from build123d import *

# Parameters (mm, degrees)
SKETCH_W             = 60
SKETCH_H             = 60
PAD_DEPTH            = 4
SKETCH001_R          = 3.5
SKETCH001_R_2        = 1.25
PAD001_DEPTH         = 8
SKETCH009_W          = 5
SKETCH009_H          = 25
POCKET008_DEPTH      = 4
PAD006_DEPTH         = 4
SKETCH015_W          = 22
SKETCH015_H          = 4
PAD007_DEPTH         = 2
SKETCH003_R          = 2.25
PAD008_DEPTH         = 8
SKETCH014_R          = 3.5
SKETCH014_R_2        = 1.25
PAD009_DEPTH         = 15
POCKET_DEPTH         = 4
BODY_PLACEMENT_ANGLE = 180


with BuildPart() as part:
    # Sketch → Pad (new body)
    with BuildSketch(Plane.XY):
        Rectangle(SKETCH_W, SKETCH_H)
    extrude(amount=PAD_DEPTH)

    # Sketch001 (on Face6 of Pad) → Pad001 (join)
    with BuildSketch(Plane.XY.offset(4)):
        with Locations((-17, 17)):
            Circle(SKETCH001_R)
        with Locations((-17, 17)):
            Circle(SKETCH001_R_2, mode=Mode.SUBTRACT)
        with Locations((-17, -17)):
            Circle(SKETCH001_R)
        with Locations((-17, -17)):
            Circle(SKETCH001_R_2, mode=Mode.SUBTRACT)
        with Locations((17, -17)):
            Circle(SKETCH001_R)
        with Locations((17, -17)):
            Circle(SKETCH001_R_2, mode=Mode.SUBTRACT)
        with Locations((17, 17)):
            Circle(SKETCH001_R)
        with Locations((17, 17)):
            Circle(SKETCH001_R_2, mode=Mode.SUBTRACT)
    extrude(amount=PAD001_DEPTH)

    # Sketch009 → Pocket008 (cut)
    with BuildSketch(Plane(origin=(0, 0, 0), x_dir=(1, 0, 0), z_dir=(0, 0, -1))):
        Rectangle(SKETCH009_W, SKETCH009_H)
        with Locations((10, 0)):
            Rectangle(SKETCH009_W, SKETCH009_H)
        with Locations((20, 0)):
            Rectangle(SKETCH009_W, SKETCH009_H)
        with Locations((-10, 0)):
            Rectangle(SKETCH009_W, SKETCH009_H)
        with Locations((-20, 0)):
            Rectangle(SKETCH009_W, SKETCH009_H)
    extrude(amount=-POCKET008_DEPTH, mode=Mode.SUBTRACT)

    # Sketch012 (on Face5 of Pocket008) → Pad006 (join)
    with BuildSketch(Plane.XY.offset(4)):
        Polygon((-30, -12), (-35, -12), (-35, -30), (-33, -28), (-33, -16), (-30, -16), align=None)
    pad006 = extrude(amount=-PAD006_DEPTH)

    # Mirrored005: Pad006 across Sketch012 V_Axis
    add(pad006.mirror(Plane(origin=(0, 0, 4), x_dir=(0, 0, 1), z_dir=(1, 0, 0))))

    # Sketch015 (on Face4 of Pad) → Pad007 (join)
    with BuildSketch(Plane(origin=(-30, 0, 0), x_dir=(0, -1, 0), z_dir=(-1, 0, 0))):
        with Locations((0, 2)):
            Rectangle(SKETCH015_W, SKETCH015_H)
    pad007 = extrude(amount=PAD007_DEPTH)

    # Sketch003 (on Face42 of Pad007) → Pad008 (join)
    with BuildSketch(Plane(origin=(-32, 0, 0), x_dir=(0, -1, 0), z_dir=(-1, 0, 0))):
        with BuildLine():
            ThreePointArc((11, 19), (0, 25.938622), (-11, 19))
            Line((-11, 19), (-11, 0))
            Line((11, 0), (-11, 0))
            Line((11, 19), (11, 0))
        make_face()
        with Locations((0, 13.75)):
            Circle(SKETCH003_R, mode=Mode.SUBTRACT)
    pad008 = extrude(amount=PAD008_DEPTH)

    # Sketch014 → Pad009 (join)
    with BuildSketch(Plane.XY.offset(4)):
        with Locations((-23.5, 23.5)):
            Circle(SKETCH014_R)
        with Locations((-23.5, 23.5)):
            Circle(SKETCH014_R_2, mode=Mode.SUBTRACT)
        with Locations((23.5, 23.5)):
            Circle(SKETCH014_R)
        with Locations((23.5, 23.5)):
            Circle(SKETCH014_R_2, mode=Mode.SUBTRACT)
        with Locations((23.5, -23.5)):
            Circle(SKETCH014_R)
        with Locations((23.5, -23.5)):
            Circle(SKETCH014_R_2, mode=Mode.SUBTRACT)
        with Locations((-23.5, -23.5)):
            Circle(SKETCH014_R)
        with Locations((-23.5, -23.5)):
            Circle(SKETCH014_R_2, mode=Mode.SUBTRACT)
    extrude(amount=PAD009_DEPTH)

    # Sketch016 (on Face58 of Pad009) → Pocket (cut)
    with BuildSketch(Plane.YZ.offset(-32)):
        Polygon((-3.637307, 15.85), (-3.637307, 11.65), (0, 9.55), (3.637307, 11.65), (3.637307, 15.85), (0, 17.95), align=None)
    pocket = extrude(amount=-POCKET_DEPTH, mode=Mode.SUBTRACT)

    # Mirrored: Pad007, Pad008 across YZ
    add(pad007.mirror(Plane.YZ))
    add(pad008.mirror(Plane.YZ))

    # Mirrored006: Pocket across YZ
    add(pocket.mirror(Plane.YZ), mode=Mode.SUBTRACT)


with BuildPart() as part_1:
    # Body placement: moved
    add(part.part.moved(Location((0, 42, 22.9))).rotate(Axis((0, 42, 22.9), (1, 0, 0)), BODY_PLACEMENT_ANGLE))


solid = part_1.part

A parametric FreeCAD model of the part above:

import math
import FreeCAD as App
import Part
import Sketcher

V = App.Vector
Q = App.Units.Quantity


def add_polygon(sketch, points):
    """Adds a closed chain of lines whose ends are joined by coincident constraints."""
    first, n = sketch.GeometryCount, len(points)
    for a, b in zip(points, points[1:] + points[:1]):
        sketch.addGeometry(Part.LineSegment(App.Vector(*a, 0), App.Vector(*b, 0)), False)
    for i in range(n):
        sketch.addConstraint(Sketcher.Constraint("Coincident", first + i, 2, first + (i + 1) % n, 1))

doc = App.newDocument("Part")
params = doc.addObject("Spreadsheet::Sheet", "Params")
for row, (alias, value) in enumerate([
    ("sketch1_width", "60 mm"),
    ("pad1_length", "4 mm"),
    ("sketch2_diameter", "7 mm"),
    ("sketch2_diameter2", "2.5 mm"),
    ("pad2_length", "8 mm"),
    ("sketch3_width", "5 mm"),
    ("sketch3_height", "25 mm"),
    ("pocket1_length", "4 mm"),
    ("sketch4_width", "5 mm"),
    ("sketch4_width2", "3 mm"),
    ("sketch4_height", "18 mm"),
    ("sketch4_height2", "12 mm"),
    ("sketch4_height3", "4 mm"),
    ("pad3_length", "4 mm"),
    ("sketch5_width", "22 mm"),
    ("sketch5_height", "4 mm"),
    ("pad4_length", "2 mm"),
    ("sketch6_diameter", "4.5 mm"),
    ("sketch6_width", "22 mm"),
    ("sketch6_height", "19 mm"),
    ("pad5_length", "8 mm"),
    ("sketch7_diameter", "7 mm"),
    ("sketch7_diameter2", "2.5 mm"),
    ("pad6_length", "15 mm"),
    ("sketch8_height", "4.2 mm"),
    ("sketch8_length", "4.2 mm"),
    ("pocket2_length", "4 mm"),
], start=1):
    params.set(f"A{row}", alias)
    params.set(f"B{row}", "=" + value)
    params.setAlias(f"B{row}", alias)

body = doc.addObject("PartDesign::Body", "Body")

# Sketch on XY plane
sketch1 = body.newObject("Sketcher::SketchObject", "Sketch")
sketch1.AttachmentSupport = (doc.getObject("XY_Plane"), [""])
sketch1.MapMode = "FlatFace"
add_polygon(sketch1, [(-30, 30), (-30, -30), (30, -30), (30, 30)])  # lines 0-3
sketch1.addConstraint(Sketcher.Constraint("Vertical", 0))
sketch1.addConstraint(Sketcher.Constraint("Horizontal", 1))
sketch1.addConstraint(Sketcher.Constraint("Vertical", 2))
sketch1.addConstraint(Sketcher.Constraint("Horizontal", 3))
sketch1.addConstraint(Sketcher.Constraint("Symmetric", 0, 2, 2, 2, -1, 1))
sketch1.addConstraint(Sketcher.Constraint("Equal", 3, 0))
sketch1.addConstraint(Sketcher.Constraint("DistanceX", 1, 1, 1, 2, 60.0))
sketch1.setExpression("Constraints[10]", "Params.sketch1_width")
pad1 = body.newObject("PartDesign::Pad", "Pad")
pad1.Profile = sketch1
pad1.setExpression("Length", "Params.pad1_length")

# Sketch on XY plane
sketch2 = body.newObject("Sketcher::SketchObject", "Sketch001")
sketch2.AttachmentSupport = (doc.getObject("XY_Plane"), [""])
sketch2.MapMode = "FlatFace"
sketch2.AttachmentOffset = App.Placement(V(0, 0, 4), App.Rotation())
sketch2.addGeometry(Part.Circle(V(-17, 17, 0), V(0, 0, 1), 3.5), False)
sketch2.addGeometry(Part.Circle(V(-17, 17, 0), V(0, 0, 1), 1.25), False)
sketch2.addGeometry(Part.Circle(V(-17, -17, 0), V(0, 0, 1), 3.5), False)
sketch2.addGeometry(Part.Circle(V(-17, -17, 0), V(0, 0, 1), 1.25), False)
sketch2.addGeometry(Part.Circle(V(17, -17, 0), V(0, 0, 1), 3.5), False)
sketch2.addGeometry(Part.Circle(V(17, -17, 0), V(0, 0, 1), 1.25), False)
sketch2.addGeometry(Part.Circle(V(17, 17, 0), V(0, 0, 1), 3.5), False)
sketch2.addGeometry(Part.Circle(V(17, 17, 0), V(0, 0, 1), 1.25), False)
sketch2.addConstraint(Sketcher.Constraint("Coincident", 1, 3, 0, 3))
sketch2.addConstraint(Sketcher.Constraint("Coincident", 3, 3, 2, 3))
sketch2.addConstraint(Sketcher.Constraint("Coincident", 5, 3, 4, 3))
sketch2.addConstraint(Sketcher.Constraint("Coincident", 7, 3, 6, 3))
sketch2.addConstraint(Sketcher.Constraint("Equal", 0, 2))
sketch2.addConstraint(Sketcher.Constraint("Equal", 1, 3))
sketch2.addConstraint(Sketcher.Constraint("Equal", 2, 4))
sketch2.addConstraint(Sketcher.Constraint("Equal", 3, 5))
sketch2.addConstraint(Sketcher.Constraint("Equal", 4, 6))
sketch2.addConstraint(Sketcher.Constraint("Equal", 5, 7))
sketch2.addConstraint(Sketcher.Constraint("Symmetric", 0, 3, 4, 3, -1, 1))
sketch2.addConstraint(Sketcher.Constraint("Symmetric", 2, 3, 6, 3, -1, 1))
sketch2.addConstraint(Sketcher.Constraint("Symmetric", 2, 3, 4, 3, -2))
sketch2.addConstraint(Sketcher.Constraint("Diameter", 0, 7.0))
sketch2.addConstraint(Sketcher.Constraint("Diameter", 1, 2.5))
sketch2.addConstraint(Sketcher.Constraint("DistanceX", 0, 3, -1, 1, 17.0))
sketch2.addConstraint(Sketcher.Constraint("DistanceY", -1, 1, 0, 3, 17.0))
sketch2.setExpression("Constraints[13]", "Params.sketch2_diameter")
sketch2.setExpression("Constraints[14]", "Params.sketch2_diameter2")
pad2 = body.newObject("PartDesign::Pad", "Pad001")
pad2.Profile = sketch2
pad2.setExpression("Length", "Params.pad2_length")

# Sketch on XY plane
sketch3 = body.newObject("Sketcher::SketchObject", "Sketch002")
sketch3.AttachmentSupport = (doc.getObject("XY_Plane"), [""])
sketch3.MapMode = "FlatFace"
add_polygon(sketch3, [(-2.5, -12.5), (-2.5, 12.5), (2.5, 12.5), (2.5, -12.5)])  # lines 0-3
add_polygon(sketch3, [(7.5, -12.5), (7.5, 12.5), (12.5, 12.5), (12.5, -12.5)])  # lines 4-7
add_polygon(sketch3, [(17.5, -12.5), (17.5, 12.5), (22.5, 12.5), (22.5, -12.5)])  # lines 8-11
add_polygon(sketch3, [(-12.5, -12.5), (-12.5, 12.5), (-7.5, 12.5), (-7.5, -12.5)])  # lines 12-15
add_polygon(sketch3, [(-22.5, -12.5), (-22.5, 12.5), (-17.5, 12.5), (-17.5, -12.5)])  # lines 16-19
sketch3.addConstraint(Sketcher.Constraint("Vertical", 0))
sketch3.addConstraint(Sketcher.Constraint("Horizontal", 1))
sketch3.addConstraint(Sketcher.Constraint("Vertical", 2))
sketch3.addConstraint(Sketcher.Constraint("Horizontal", 3))
sketch3.addConstraint(Sketcher.Constraint("Vertical", 4))
sketch3.addConstraint(Sketcher.Constraint("Horizontal", 5))
sketch3.addConstraint(Sketcher.Constraint("Vertical", 6))
sketch3.addConstraint(Sketcher.Constraint("Horizontal", 7))
sketch3.addConstraint(Sketcher.Constraint("Vertical", 8))
sketch3.addConstraint(Sketcher.Constraint("Horizontal", 9))
sketch3.addConstraint(Sketcher.Constraint("Vertical", 10))
sketch3.addConstraint(Sketcher.Constraint("Horizontal", 11))
sketch3.addConstraint(Sketcher.Constraint("Vertical", 12))
sketch3.addConstraint(Sketcher.Constraint("Horizontal", 13))
sketch3.addConstraint(Sketcher.Constraint("Vertical", 14))
sketch3.addConstraint(Sketcher.Constraint("Horizontal", 15))
sketch3.addConstraint(Sketcher.Constraint("Vertical", 16))
sketch3.addConstraint(Sketcher.Constraint("Horizontal", 17))
sketch3.addConstraint(Sketcher.Constraint("Vertical", 18))
sketch3.addConstraint(Sketcher.Constraint("Horizontal", 19))
sketch3.addConstraint(Sketcher.Constraint("Symmetric", 0, 2, 2, 2, -1, 1))
sketch3.addConstraint(Sketcher.Constraint("Symmetric", 6, 2, 12, 2, -1, 1))
sketch3.addConstraint(Sketcher.Constraint("Symmetric", 4, 2, 14, 2, -1, 1))
sketch3.addConstraint(Sketcher.Constraint("Symmetric", 10, 2, 16, 2, -1, 1))
sketch3.addConstraint(Sketcher.Constraint("Symmetric", 8, 2, 18, 2, -1, 1))
sketch3.addConstraint(Sketcher.Constraint("Horizontal", 1, 2, 4, 2))
sketch3.addConstraint(Sketcher.Constraint("Horizontal", 3, 2, 6, 2))
sketch3.addConstraint(Sketcher.Constraint("Horizontal", 5, 2, 8, 2))
sketch3.addConstraint(Sketcher.Constraint("Horizontal", 7, 2, 10, 2))
sketch3.addConstraint(Sketcher.Constraint("Equal", 3, 5))
sketch3.addConstraint(Sketcher.Constraint("Equal", 7, 9))
sketch3.addConstraint(Sketcher.Constraint("DistanceX", 1, 1, 1, 2, 5.0))
sketch3.addConstraint(Sketcher.Constraint("DistanceY", 0, 1, 0, 2, 25.0))
sketch3.addConstraint(Sketcher.Constraint("DistanceX", 1, 2, 4, 2, 5.0))
sketch3.addConstraint(Sketcher.Constraint("DistanceX", 5, 2, 8, 2, 5.0))
sketch3.setExpression("Constraints[51]", "Params.sketch3_width")
sketch3.setExpression("Constraints[52]", "Params.sketch3_height")
pocket1 = body.newObject("PartDesign::Pocket", "Pocket")
pocket1.Profile = sketch3
pocket1.setExpression("Length", "Params.pocket1_length")
pocket1.Reversed = True

# Sketch on XY plane
sketch4 = body.newObject("Sketcher::SketchObject", "Sketch003")
sketch4.AttachmentSupport = (doc.getObject("XY_Plane"), [""])
sketch4.MapMode = "FlatFace"
sketch4.AttachmentOffset = App.Placement(V(0, 0, 4), App.Rotation())
add_polygon(sketch4, [(-30, -12), (-35, -12), (-35, -30), (-33, -28), (-33, -16), (-30, -16)])  # lines 0-5
sketch4.addConstraint(Sketcher.Constraint("Horizontal", 0))
sketch4.addConstraint(Sketcher.Constraint("Vertical", 1))
sketch4.addConstraint(Sketcher.Constraint("Vertical", 3))
sketch4.addConstraint(Sketcher.Constraint("Horizontal", 4))
sketch4.addConstraint(Sketcher.Constraint("Vertical", 5))
sketch4.addConstraint(Sketcher.Constraint("DistanceX", 0, 2, 0, 1, 5.0))
sketch4.addConstraint(Sketcher.Constraint("DistanceX", 4, 1, 4, 2, 3.0))
sketch4.addConstraint(Sketcher.Constraint("DistanceY", 1, 2, 1, 1, 18.0))
sketch4.addConstraint(Sketcher.Constraint("DistanceY", 3, 1, 3, 2, 12.0))
sketch4.addConstraint(Sketcher.Constraint("DistanceY", 5, 1, 5, 2, 4.0))
sketch4.addConstraint(Sketcher.Constraint("DistanceX", 0, 2, -1, 1, 35.0))
sketch4.addConstraint(Sketcher.Constraint("DistanceY", 0, 2, -1, 1, 12.0))
sketch4.setExpression("Constraints[11]", "Params.sketch4_width")
sketch4.setExpression("Constraints[12]", "Params.sketch4_width2")
sketch4.setExpression("Constraints[13]", "Params.sketch4_height")
sketch4.setExpression("Constraints[14]", "Params.sketch4_height2")
sketch4.setExpression("Constraints[15]", "Params.sketch4_height3")
pad3 = body.newObject("PartDesign::Pad", "Pad002")
pad3.Profile = sketch4
pad3.setExpression("Length", "Params.pad3_length")
pad3.Reversed = True
doc.recompute()

mirrored = body.newObject("PartDesign::Mirrored", "Mirrored")
mirrored.Originals = [pad3]
mirrored.MirrorPlane = (doc.getObject("YZ_Plane"), [""])
body.Tip = mirrored

# Sketch on YZ plane
sketch5 = body.newObject("Sketcher::SketchObject", "Sketch004")
sketch5.AttachmentSupport = (doc.getObject("YZ_Plane"), [""])
sketch5.MapMode = "FlatFace"
sketch5.AttachmentOffset = App.Placement(V(0, 0, -30), App.Rotation())
add_polygon(sketch5, [(11, 4), (11, 0), (-11, 0), (-11, 4)])  # lines 0-3
sketch5.addConstraint(Sketcher.Constraint("Vertical", 0))
sketch5.addConstraint(Sketcher.Constraint("Horizontal", 1))
sketch5.addConstraint(Sketcher.Constraint("Vertical", 2))
sketch5.addConstraint(Sketcher.Constraint("Horizontal", 3))
sketch5.addConstraint(Sketcher.Constraint("Symmetric", 0, 2, 1, 2, -1, 1))
sketch5.addConstraint(Sketcher.Constraint("DistanceX", 1, 2, 1, 1, 22.0))
sketch5.addConstraint(Sketcher.Constraint("DistanceY", 0, 2, 0, 1, 4.0))
sketch5.setExpression("Constraints[9]", "Params.sketch5_width")
sketch5.setExpression("Constraints[10]", "Params.sketch5_height")
pad4 = body.newObject("PartDesign::Pad", "Pad003")
pad4.Profile = sketch5
pad4.setExpression("Length", "Params.pad4_length")
pad4.Reversed = True

# Sketch on YZ plane
sketch6 = body.newObject("Sketcher::SketchObject", "Sketch005")
sketch6.AttachmentSupport = (doc.getObject("YZ_Plane"), [""])
sketch6.MapMode = "FlatFace"
sketch6.AttachmentOffset = App.Placement(V(0, 0, -32), App.Rotation())
sketch6.addGeometry(Part.ArcOfCircle(Part.Circle(V(0, 13.75, 0), V(0, 0, 1), 12.188622), math.radians(25.513869), math.radians(154.486131)), False)
sketch6.addGeometry(Part.LineSegment(V(11, 19, 0), V(11, 0, 0)), False)
sketch6.addGeometry(Part.LineSegment(V(11, 0, 0), V(-11, 0, 0)), False)
sketch6.addGeometry(Part.LineSegment(V(-11, 0, 0), V(-11, 19, 0)), False)
sketch6.addGeometry(Part.Circle(V(0, 13.75, 0), V(0, 0, 1), 2.25), False)
sketch6.addConstraint(Sketcher.Constraint("Coincident", 0, 1, 1, 1))
sketch6.addConstraint(Sketcher.Constraint("Coincident", 1, 2, 2, 1))
sketch6.addConstraint(Sketcher.Constraint("Coincident", 2, 2, 3, 1))
sketch6.addConstraint(Sketcher.Constraint("Coincident", 3, 2, 0, 2))
sketch6.addConstraint(Sketcher.Constraint("Vertical", 1))
sketch6.addConstraint(Sketcher.Constraint("Horizontal", 2))
sketch6.addConstraint(Sketcher.Constraint("Vertical", 3))
sketch6.addConstraint(Sketcher.Constraint("Coincident", 4, 3, 0, 3))
sketch6.addConstraint(Sketcher.Constraint("Symmetric", 1, 2, 2, 2, -1, 1))
sketch6.addConstraint(Sketcher.Constraint("PointOnObject", 0, 3, -2))
sketch6.addConstraint(Sketcher.Constraint("Diameter", 4, 4.5))
sketch6.addConstraint(Sketcher.Constraint("DistanceX", 2, 2, 2, 1, 22.0))
sketch6.addConstraint(Sketcher.Constraint("DistanceY", 1, 2, 1, 1, 19.0))
sketch6.addConstraint(Sketcher.Constraint("DistanceY", -1, 1, 0, 3, 13.75))
sketch6.setExpression("Constraints[10]", "Params.sketch6_diameter")
sketch6.setExpression("Constraints[11]", "Params.sketch6_width")
sketch6.setExpression("Constraints[12]", "Params.sketch6_height")
pad5 = body.newObject("PartDesign::Pad", "Pad004")
pad5.Profile = sketch6
pad5.setExpression("Length", "Params.pad5_length")
pad5.Reversed = True

# Sketch on XY plane
sketch7 = body.newObject("Sketcher::SketchObject", "Sketch006")
sketch7.AttachmentSupport = (doc.getObject("XY_Plane"), [""])
sketch7.MapMode = "FlatFace"
sketch7.AttachmentOffset = App.Placement(V(0, 0, 4), App.Rotation())
sketch7.addGeometry(Part.Circle(V(-23.5, 23.5, 0), V(0, 0, 1), 3.5), False)
sketch7.addGeometry(Part.Circle(V(-23.5, 23.5, 0), V(0, 0, 1), 1.25), False)
sketch7.addGeometry(Part.Circle(V(23.5, 23.5, 0), V(0, 0, 1), 3.5), False)
sketch7.addGeometry(Part.Circle(V(23.5, 23.5, 0), V(0, 0, 1), 1.25), False)
sketch7.addGeometry(Part.Circle(V(23.5, -23.5, 0), V(0, 0, 1), 3.5), False)
sketch7.addGeometry(Part.Circle(V(23.5, -23.5, 0), V(0, 0, 1), 1.25), False)
sketch7.addGeometry(Part.Circle(V(-23.5, -23.5, 0), V(0, 0, 1), 3.5), False)
sketch7.addGeometry(Part.Circle(V(-23.5, -23.5, 0), V(0, 0, 1), 1.25), False)
sketch7.addConstraint(Sketcher.Constraint("Coincident", 1, 3, 0, 3))
sketch7.addConstraint(Sketcher.Constraint("Coincident", 3, 3, 2, 3))
sketch7.addConstraint(Sketcher.Constraint("Coincident", 5, 3, 4, 3))
sketch7.addConstraint(Sketcher.Constraint("Coincident", 7, 3, 6, 3))
sketch7.addConstraint(Sketcher.Constraint("Equal", 0, 2))
sketch7.addConstraint(Sketcher.Constraint("Equal", 1, 3))
sketch7.addConstraint(Sketcher.Constraint("Equal", 2, 4))
sketch7.addConstraint(Sketcher.Constraint("Equal", 3, 5))
sketch7.addConstraint(Sketcher.Constraint("Equal", 4, 6))
sketch7.addConstraint(Sketcher.Constraint("Equal", 5, 7))
sketch7.addConstraint(Sketcher.Constraint("Symmetric", 0, 3, 4, 3, -1, 1))
sketch7.addConstraint(Sketcher.Constraint("Symmetric", 2, 3, 6, 3, -1, 1))
sketch7.addConstraint(Sketcher.Constraint("Symmetric", 0, 3, 2, 3, -2))
sketch7.addConstraint(Sketcher.Constraint("Diameter", 0, 7.0))
sketch7.addConstraint(Sketcher.Constraint("Diameter", 1, 2.5))
sketch7.addConstraint(Sketcher.Constraint("DistanceX", 0, 3, 2, 3, 47.0))
sketch7.addConstraint(Sketcher.Constraint("DistanceY", 4, 3, 2, 3, 47.0))
sketch7.setExpression("Constraints[13]", "Params.sketch7_diameter")
sketch7.setExpression("Constraints[14]", "Params.sketch7_diameter2")
pad6 = body.newObject("PartDesign::Pad", "Pad005")
pad6.Profile = sketch7
pad6.setExpression("Length", "Params.pad6_length")

# Sketch on YZ plane
sketch8 = body.newObject("Sketcher::SketchObject", "Sketch007")
sketch8.AttachmentSupport = (doc.getObject("YZ_Plane"), [""])
sketch8.MapMode = "FlatFace"
sketch8.AttachmentOffset = App.Placement(V(0, 0, -32), App.Rotation())
add_polygon(sketch8, [(-3.637307, 15.85), (-3.637307, 11.65), (0, 9.55), (3.637307, 11.65), (3.637307, 15.85), (0, 17.95)])  # lines 0-5
sketch8.addConstraint(Sketcher.Constraint("Vertical", 0))
sketch8.addConstraint(Sketcher.Constraint("Vertical", 3))
sketch8.addConstraint(Sketcher.Constraint("Symmetric", 0, 2, 2, 2, -2))
sketch8.addConstraint(Sketcher.Constraint("PointOnObject", 1, 2, -2))
sketch8.addConstraint(Sketcher.Constraint("PointOnObject", 4, 2, -2))
sketch8.addConstraint(Sketcher.Constraint("Parallel", 1, 4))
sketch8.addConstraint(Sketcher.Constraint("Parallel", 2, 5))
sketch8.addConstraint(Sketcher.Constraint("Angle", 1, Q("-29.999998 deg")))
sketch8.addConstraint(Sketcher.Constraint("DistanceY", 0, 2, 0, 1, 4.2))
sketch8.addConstraint(Sketcher.Constraint("Distance", 1, 4.2))
sketch8.addConstraint(Sketcher.Constraint("DistanceY", -1, 1, 0, 2, 11.65))
sketch8.setExpression("Constraints[14]", "Params.sketch8_height")
sketch8.setExpression("Constraints[15]", "Params.sketch8_length")
pocket2 = body.newObject("PartDesign::Pocket", "Pocket001")
pocket2.Profile = sketch8
pocket2.setExpression("Length", "Params.pocket2_length")
doc.recompute()

mirrored2 = body.newObject("PartDesign::Mirrored", "Mirrored001")
mirrored2.Originals = [pad4, pad5]
mirrored2.MirrorPlane = (doc.getObject("YZ_Plane"), [""])
body.Tip = mirrored2
doc.recompute()

mirrored3 = body.newObject("PartDesign::Mirrored", "Mirrored002")
mirrored3.Originals = [pocket2]
mirrored3.MirrorPlane = (doc.getObject("YZ_Plane"), [""])
body.Tip = mirrored3
body2 = doc.addObject("PartDesign::Body", "Body001")
doc.recompute()

body.Placement = App.Placement(V(0, 42, 22.9), App.Rotation(V(1, 0, 0), 180))
boolean = body2.newObject("PartDesign::Boolean", "Boolean")
boolean.Type = "Fuse"
boolean.addObjects([body])

doc.recompute()
